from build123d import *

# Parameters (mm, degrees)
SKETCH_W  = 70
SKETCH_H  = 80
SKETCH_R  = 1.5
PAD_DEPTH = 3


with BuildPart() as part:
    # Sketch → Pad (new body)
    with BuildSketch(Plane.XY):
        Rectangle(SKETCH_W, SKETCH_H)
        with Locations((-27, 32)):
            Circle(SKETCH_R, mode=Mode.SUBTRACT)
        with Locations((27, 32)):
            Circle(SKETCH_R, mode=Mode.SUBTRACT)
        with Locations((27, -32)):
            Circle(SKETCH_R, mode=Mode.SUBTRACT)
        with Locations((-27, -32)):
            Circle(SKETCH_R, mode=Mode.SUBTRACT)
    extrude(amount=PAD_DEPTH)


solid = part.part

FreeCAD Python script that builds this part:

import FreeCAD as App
import Part
import Sketcher
Q = App.Units.Quantity

doc = App.newDocument("Part")
body = doc.addObject("PartDesign::Body", "Body")

# Sketch on XY plane
sketch1 = body.newObject("Sketcher::SketchObject", "Sketch")
sketch1.AttachmentSupport = (doc.getObject("XY_Plane"), [""])
sketch1.MapMode = "FlatFace"
sketch1.addGeometry([
    Part.LineSegment(App.Vector(-35, 40, 0), App.Vector(-35, -40, 0)),  # 0
    Part.LineSegment(App.Vector(-35, -40, 0), App.Vector(35, -40, 0)),  # 1
    Part.LineSegment(App.Vector(35, -40, 0), App.Vector(35, 40, 0)),  # 2
    Part.LineSegment(App.Vector(35, 40, 0), App.Vector(-35, 40, 0)),  # 3
    Part.Circle(App.Vector(-27, -32, 0), App.Vector(0, 0, 1), 1.5),  # 4
    Part.Circle(App.Vector(27, -32, 0), App.Vector(0, 0, 1), 1.5),  # 5
    Part.Circle(App.Vector(-27, 32, 0), App.Vector(0, 0, 1), 1.5),  # 6
    Part.Circle(App.Vector(27, 32, 0), App.Vector(0, 0, 1), 1.5),  # 7
], False)
sketch1.addConstraint([
    Sketcher.Constraint("Coincident", 0, 2, 1, 1),
    Sketcher.Constraint("Coincident", 1, 2, 2, 1),
    Sketcher.Constraint("Coincident", 2, 2, 3, 1),
    Sketcher.Constraint("Coincident", 3, 2, 0, 1),
    Sketcher.Constraint("Vertical", 0),
    Sketcher.Constraint("Horizontal", 1),
    Sketcher.Constraint("Vertical", 2),
    Sketcher.Constraint("Horizontal", 3),
    Sketcher.Constraint("Equal", 4, 5),
    Sketcher.Constraint("Equal", 5, 6),
    Sketcher.Constraint("Equal", 6, 7),
    Sketcher.Constraint("Symmetric", 5, 3, 6, 3, -1, 1),
    Sketcher.Constraint("Symmetric", 4, 3, 7, 3, -1, 1),
    Sketcher.Constraint("Symmetric", 0, 2, 2, 2, -1, 1),
    Sketcher.Constraint("Symmetric", 4, 3, 5, 3, -2),
    Sketcher.Constraint("Diameter", 4, Q("3 mm")),
    Sketcher.Constraint("DistanceX", 1, 1, 1, 2, Q("70 mm")),
    Sketcher.Constraint("DistanceY", 0, 2, 0, 1, Q("80 mm")),
    Sketcher.Constraint("DistanceX", 4, 3, -1, 1, Q("27 mm")),
    Sketcher.Constraint("DistanceY", 4, 3, -1, 1, Q("32 mm")),
])
pad1 = body.newObject("PartDesign::Pad", "Pad")
pad1.Profile = sketch1
pad1.Length = 3

doc.recompute()
